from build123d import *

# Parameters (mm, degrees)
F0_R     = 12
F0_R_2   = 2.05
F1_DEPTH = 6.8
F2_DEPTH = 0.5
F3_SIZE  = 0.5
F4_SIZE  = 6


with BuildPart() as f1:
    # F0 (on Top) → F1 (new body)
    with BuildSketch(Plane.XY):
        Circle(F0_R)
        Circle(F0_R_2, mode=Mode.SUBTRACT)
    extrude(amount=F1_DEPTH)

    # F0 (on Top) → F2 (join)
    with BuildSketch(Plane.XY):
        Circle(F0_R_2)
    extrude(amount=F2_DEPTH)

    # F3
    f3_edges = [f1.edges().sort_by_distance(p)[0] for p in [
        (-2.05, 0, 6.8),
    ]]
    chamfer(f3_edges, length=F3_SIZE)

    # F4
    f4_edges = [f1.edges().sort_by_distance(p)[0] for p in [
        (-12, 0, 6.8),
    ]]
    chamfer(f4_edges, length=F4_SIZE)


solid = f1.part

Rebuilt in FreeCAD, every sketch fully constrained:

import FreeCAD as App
import Part
import Sketcher


def edges_at(feature, points):
    """Names of the edges that pass closest to the given points."""
    edges = feature.Shape.Edges
    near = lambda p: min(range(len(edges)), key=lambda i: edges[i].distToShape(Part.Vertex(*p))[0])
    return sorted({f"Edge{near(p) + 1}" for p in points})

doc = App.newDocument("Part")
params = doc.addObject("Spreadsheet::Sheet", "Params")
for row, (alias, value) in enumerate([
    ("sketch1_diameter", "24 mm"),
    ("sketch1_diameter2", "4.1 mm"),
    ("pad1_length", "6.8 mm"),
    ("sketch2_diameter", "4.1 mm"),
    ("pad2_length", "0.5 mm"),
    ("chamfer_size", "0.5 mm"),
    ("chamfer2_size", "6 mm"),
], start=1):
    params.set(f"A{row}", alias)
    params.set(f"B{row}", "=" + value)
    params.setAlias(f"B{row}", alias)

body = doc.addObject("PartDesign::Body", "Body")

sketch1 = body.newObject("Sketcher::SketchObject", "Sketch")
sketch1.AttachmentSupport = (doc.getObject("XY_Plane"), [""])
sketch1.MapMode = "FlatFace"
sketch1.addGeometry(Part.Circle(App.Vector(0, 0, 0), App.Vector(0, 0, 1), 12), False)
sketch1.addGeometry(Part.Circle(App.Vector(0, 0, 0), App.Vector(0, 0, 1), 2), False)
sketch1.addConstraint(Sketcher.Constraint("Coincident", 0, 3, -1, 1))
sketch1.addConstraint(Sketcher.Constraint("Coincident", 1, 3, -1, 1))
sketch1.addConstraint(Sketcher.Constraint("Diameter", 0, 24.0))
sketch1.addConstraint(Sketcher.Constraint("Diameter", 1, 4.1))
sketch1.setExpression("Constraints[2]", "Params.sketch1_diameter")
sketch1.setExpression("Constraints[3]", "Params.sketch1_diameter2")
pad1 = body.newObject("PartDesign::Pad", "Pad")
pad1.Profile = sketch1
pad1.setExpression("Length", "Params.pad1_length")

sketch2 = body.newObject("Sketcher::SketchObject", "Sketch001")
sketch2.AttachmentSupport = (doc.getObject("XY_Plane"), [""])
sketch2.MapMode = "FlatFace"
sketch2.addGeometry(Part.Circle(App.Vector(0, 0, 0), App.Vector(0, 0, 1), 2), False)
sketch2.addConstraint(Sketcher.Constraint("Coincident", 0, 3, -1, 1))
sketch2.addConstraint(Sketcher.Constraint("Diameter", 0, 4.1))
sketch2.setExpression("Constraints[1]", "Params.sketch2_diameter")
pad2 = body.newObject("PartDesign::Pad", "Pad001")
pad2.Profile = sketch2
pad2.setExpression("Length", "Params.pad2_length")
doc.recompute()

chamfer = body.newObject("PartDesign::Chamfer", "Chamfer")
chamfer.Base = (pad2, edges_at(pad2, [(-2.05, 0, 6.8)]))
chamfer.setExpression("Size", "Params.chamfer_size")
doc.recompute()

chamfer2 = body.newObject("PartDesign::Chamfer", "Chamfer001")
chamfer2.Base = (chamfer, edges_at(chamfer, [(-12, 0, 6.8)]))
chamfer2.setExpression("Size", "Params.chamfer2_size")

doc.recompute()
